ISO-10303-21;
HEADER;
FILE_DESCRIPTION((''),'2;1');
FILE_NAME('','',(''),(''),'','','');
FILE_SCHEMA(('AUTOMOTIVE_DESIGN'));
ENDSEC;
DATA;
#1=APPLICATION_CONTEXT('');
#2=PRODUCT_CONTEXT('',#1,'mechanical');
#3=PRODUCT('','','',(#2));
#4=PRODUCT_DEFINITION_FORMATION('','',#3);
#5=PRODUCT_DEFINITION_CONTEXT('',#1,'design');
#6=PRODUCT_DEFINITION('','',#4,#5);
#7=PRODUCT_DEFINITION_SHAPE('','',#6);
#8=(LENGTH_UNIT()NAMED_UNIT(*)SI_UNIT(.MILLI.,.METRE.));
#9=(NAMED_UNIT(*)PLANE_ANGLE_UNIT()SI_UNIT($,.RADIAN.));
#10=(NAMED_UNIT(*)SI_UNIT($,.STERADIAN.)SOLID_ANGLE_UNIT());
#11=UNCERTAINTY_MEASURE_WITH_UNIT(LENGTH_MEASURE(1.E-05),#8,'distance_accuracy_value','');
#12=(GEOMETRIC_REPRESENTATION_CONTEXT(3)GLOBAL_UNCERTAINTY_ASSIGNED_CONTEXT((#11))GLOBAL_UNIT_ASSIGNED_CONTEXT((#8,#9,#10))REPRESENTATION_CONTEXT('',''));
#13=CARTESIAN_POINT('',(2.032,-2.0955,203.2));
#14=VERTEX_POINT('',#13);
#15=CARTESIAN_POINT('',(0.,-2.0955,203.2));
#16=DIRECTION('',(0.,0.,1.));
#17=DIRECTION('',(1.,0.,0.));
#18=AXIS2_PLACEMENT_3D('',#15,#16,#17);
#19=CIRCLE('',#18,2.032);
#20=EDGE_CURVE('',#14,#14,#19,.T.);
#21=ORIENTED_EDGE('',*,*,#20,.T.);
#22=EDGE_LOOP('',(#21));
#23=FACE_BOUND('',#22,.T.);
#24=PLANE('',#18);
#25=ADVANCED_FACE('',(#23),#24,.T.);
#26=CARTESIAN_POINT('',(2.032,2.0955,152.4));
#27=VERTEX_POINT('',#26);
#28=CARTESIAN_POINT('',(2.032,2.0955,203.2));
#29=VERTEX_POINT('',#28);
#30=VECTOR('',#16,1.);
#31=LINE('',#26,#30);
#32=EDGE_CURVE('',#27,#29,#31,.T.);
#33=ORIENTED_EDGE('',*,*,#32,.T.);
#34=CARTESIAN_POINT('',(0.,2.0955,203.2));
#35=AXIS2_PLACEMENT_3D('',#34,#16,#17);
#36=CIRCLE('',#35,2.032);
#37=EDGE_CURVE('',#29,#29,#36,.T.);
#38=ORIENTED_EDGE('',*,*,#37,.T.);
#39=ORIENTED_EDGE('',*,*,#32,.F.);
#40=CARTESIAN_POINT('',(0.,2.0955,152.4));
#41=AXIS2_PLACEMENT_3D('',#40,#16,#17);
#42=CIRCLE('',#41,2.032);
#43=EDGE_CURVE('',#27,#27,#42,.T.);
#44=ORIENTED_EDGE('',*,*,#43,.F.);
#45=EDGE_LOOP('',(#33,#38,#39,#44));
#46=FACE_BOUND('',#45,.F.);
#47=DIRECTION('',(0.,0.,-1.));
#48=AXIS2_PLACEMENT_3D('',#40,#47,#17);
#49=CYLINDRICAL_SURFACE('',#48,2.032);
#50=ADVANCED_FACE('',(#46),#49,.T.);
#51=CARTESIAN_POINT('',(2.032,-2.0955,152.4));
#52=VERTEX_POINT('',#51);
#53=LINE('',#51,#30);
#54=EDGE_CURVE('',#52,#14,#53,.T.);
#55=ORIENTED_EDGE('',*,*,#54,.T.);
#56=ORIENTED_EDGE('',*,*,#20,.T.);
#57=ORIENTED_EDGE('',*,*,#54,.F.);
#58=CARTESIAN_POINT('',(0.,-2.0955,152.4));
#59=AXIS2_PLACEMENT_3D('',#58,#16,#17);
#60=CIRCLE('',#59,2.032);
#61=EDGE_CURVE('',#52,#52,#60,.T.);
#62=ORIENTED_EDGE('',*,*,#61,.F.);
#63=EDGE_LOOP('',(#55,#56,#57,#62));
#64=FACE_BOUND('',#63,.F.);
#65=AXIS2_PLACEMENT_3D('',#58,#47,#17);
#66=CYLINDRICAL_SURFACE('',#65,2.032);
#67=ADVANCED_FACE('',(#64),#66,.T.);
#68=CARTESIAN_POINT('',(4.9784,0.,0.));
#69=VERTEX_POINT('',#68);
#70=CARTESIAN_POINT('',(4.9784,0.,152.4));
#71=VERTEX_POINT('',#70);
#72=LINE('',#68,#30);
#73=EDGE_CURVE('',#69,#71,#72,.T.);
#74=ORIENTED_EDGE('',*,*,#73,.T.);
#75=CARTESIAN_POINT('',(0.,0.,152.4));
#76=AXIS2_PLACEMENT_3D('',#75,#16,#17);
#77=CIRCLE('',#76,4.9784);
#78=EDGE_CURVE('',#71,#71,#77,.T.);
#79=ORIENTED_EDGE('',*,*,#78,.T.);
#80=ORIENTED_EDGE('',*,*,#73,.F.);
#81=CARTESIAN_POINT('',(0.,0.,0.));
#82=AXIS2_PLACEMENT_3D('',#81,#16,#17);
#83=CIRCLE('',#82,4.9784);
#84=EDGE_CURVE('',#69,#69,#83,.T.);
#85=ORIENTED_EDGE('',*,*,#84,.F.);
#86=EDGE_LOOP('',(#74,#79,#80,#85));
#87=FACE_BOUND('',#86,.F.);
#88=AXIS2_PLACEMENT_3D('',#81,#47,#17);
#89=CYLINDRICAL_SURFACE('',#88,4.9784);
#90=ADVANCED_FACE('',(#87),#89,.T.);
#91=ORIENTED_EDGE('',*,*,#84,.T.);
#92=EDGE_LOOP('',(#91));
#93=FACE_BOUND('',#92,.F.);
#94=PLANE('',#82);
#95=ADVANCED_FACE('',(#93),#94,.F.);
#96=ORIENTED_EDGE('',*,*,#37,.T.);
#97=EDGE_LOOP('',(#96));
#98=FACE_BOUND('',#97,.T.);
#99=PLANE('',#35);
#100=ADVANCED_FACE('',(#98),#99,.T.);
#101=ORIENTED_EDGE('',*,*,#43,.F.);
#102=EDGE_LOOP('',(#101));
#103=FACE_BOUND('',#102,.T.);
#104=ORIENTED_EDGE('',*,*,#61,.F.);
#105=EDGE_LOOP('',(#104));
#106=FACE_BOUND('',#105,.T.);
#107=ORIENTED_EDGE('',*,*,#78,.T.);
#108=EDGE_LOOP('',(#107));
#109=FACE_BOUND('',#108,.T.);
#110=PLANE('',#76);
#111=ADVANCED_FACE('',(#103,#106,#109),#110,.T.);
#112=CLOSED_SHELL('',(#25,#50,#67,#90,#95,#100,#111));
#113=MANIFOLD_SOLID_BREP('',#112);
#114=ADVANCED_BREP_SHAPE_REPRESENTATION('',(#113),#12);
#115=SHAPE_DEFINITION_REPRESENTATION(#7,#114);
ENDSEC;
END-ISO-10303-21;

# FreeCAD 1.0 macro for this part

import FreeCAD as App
import Part
import Sketcher
from FreeCAD import Vector
Q = App.Units.Quantity

doc = App.newDocument("Part")
body = doc.addObject("PartDesign::Body", "Body")

sketch1 = doc.addObject("Sketcher::SketchObject", "Sketch")
body.addObject(sketch1)
sketch1.AttachmentSupport = (doc.XY_Plane, [""])
sketch1.MapMode = "FlatFace"
sketch1.addGeometry(Part.Circle(Vector(0, 0, 0), Vector(0, 0, 1), 5), False)
sketch1.addConstraint(Sketcher.Constraint("Coincident", 0, 3, -1, 1))
sketch1.addConstraint(Sketcher.Constraint("Diameter", 0, Q("0.392 in")))
pad1 = doc.addObject("PartDesign::Pad", "Pad")
body.addObject(pad1)
pad1.Profile = sketch1
pad1.Length = Q("6 in")

sketch2 = doc.addObject("Sketcher::SketchObject", "Sketch001")
body.addObject(sketch2)
sketch2.AttachmentSupport = (doc.XY_Plane, [""])
sketch2.MapMode = "FlatFace"
sketch2.AttachmentOffset = App.Placement(Vector(0, 0, 6 * 25.4), App.Rotation())
sketch2.addGeometry(Part.Circle(Vector(0, 2.1, 0), Vector(0, 0, 1), 2), False)
sketch2.addGeometry(Part.Circle(Vector(0, -2.1, 0), Vector(0, 0, 1), 2), False)
sketch2.addConstraint(Sketcher.Constraint("Equal", 0, 1))
sketch2.addConstraint(Sketcher.Constraint("Symmetric", 0, 3, 1, 3, -1, 1))
sketch2.addConstraint(Sketcher.Constraint("PointOnObject", 0, 3, -2))
sketch2.addConstraint(Sketcher.Constraint("Diameter", 0, Q("0.16 in")))
sketch2.addConstraint(Sketcher.Constraint("DistanceY", 1, 3, 0, 3, Q("0.165 in")))
pad2 = doc.addObject("PartDesign::Pad", "Pad001")
body.addObject(pad2)
pad2.Profile = sketch2
pad2.Length = Q("2 in")

doc.recompute()
